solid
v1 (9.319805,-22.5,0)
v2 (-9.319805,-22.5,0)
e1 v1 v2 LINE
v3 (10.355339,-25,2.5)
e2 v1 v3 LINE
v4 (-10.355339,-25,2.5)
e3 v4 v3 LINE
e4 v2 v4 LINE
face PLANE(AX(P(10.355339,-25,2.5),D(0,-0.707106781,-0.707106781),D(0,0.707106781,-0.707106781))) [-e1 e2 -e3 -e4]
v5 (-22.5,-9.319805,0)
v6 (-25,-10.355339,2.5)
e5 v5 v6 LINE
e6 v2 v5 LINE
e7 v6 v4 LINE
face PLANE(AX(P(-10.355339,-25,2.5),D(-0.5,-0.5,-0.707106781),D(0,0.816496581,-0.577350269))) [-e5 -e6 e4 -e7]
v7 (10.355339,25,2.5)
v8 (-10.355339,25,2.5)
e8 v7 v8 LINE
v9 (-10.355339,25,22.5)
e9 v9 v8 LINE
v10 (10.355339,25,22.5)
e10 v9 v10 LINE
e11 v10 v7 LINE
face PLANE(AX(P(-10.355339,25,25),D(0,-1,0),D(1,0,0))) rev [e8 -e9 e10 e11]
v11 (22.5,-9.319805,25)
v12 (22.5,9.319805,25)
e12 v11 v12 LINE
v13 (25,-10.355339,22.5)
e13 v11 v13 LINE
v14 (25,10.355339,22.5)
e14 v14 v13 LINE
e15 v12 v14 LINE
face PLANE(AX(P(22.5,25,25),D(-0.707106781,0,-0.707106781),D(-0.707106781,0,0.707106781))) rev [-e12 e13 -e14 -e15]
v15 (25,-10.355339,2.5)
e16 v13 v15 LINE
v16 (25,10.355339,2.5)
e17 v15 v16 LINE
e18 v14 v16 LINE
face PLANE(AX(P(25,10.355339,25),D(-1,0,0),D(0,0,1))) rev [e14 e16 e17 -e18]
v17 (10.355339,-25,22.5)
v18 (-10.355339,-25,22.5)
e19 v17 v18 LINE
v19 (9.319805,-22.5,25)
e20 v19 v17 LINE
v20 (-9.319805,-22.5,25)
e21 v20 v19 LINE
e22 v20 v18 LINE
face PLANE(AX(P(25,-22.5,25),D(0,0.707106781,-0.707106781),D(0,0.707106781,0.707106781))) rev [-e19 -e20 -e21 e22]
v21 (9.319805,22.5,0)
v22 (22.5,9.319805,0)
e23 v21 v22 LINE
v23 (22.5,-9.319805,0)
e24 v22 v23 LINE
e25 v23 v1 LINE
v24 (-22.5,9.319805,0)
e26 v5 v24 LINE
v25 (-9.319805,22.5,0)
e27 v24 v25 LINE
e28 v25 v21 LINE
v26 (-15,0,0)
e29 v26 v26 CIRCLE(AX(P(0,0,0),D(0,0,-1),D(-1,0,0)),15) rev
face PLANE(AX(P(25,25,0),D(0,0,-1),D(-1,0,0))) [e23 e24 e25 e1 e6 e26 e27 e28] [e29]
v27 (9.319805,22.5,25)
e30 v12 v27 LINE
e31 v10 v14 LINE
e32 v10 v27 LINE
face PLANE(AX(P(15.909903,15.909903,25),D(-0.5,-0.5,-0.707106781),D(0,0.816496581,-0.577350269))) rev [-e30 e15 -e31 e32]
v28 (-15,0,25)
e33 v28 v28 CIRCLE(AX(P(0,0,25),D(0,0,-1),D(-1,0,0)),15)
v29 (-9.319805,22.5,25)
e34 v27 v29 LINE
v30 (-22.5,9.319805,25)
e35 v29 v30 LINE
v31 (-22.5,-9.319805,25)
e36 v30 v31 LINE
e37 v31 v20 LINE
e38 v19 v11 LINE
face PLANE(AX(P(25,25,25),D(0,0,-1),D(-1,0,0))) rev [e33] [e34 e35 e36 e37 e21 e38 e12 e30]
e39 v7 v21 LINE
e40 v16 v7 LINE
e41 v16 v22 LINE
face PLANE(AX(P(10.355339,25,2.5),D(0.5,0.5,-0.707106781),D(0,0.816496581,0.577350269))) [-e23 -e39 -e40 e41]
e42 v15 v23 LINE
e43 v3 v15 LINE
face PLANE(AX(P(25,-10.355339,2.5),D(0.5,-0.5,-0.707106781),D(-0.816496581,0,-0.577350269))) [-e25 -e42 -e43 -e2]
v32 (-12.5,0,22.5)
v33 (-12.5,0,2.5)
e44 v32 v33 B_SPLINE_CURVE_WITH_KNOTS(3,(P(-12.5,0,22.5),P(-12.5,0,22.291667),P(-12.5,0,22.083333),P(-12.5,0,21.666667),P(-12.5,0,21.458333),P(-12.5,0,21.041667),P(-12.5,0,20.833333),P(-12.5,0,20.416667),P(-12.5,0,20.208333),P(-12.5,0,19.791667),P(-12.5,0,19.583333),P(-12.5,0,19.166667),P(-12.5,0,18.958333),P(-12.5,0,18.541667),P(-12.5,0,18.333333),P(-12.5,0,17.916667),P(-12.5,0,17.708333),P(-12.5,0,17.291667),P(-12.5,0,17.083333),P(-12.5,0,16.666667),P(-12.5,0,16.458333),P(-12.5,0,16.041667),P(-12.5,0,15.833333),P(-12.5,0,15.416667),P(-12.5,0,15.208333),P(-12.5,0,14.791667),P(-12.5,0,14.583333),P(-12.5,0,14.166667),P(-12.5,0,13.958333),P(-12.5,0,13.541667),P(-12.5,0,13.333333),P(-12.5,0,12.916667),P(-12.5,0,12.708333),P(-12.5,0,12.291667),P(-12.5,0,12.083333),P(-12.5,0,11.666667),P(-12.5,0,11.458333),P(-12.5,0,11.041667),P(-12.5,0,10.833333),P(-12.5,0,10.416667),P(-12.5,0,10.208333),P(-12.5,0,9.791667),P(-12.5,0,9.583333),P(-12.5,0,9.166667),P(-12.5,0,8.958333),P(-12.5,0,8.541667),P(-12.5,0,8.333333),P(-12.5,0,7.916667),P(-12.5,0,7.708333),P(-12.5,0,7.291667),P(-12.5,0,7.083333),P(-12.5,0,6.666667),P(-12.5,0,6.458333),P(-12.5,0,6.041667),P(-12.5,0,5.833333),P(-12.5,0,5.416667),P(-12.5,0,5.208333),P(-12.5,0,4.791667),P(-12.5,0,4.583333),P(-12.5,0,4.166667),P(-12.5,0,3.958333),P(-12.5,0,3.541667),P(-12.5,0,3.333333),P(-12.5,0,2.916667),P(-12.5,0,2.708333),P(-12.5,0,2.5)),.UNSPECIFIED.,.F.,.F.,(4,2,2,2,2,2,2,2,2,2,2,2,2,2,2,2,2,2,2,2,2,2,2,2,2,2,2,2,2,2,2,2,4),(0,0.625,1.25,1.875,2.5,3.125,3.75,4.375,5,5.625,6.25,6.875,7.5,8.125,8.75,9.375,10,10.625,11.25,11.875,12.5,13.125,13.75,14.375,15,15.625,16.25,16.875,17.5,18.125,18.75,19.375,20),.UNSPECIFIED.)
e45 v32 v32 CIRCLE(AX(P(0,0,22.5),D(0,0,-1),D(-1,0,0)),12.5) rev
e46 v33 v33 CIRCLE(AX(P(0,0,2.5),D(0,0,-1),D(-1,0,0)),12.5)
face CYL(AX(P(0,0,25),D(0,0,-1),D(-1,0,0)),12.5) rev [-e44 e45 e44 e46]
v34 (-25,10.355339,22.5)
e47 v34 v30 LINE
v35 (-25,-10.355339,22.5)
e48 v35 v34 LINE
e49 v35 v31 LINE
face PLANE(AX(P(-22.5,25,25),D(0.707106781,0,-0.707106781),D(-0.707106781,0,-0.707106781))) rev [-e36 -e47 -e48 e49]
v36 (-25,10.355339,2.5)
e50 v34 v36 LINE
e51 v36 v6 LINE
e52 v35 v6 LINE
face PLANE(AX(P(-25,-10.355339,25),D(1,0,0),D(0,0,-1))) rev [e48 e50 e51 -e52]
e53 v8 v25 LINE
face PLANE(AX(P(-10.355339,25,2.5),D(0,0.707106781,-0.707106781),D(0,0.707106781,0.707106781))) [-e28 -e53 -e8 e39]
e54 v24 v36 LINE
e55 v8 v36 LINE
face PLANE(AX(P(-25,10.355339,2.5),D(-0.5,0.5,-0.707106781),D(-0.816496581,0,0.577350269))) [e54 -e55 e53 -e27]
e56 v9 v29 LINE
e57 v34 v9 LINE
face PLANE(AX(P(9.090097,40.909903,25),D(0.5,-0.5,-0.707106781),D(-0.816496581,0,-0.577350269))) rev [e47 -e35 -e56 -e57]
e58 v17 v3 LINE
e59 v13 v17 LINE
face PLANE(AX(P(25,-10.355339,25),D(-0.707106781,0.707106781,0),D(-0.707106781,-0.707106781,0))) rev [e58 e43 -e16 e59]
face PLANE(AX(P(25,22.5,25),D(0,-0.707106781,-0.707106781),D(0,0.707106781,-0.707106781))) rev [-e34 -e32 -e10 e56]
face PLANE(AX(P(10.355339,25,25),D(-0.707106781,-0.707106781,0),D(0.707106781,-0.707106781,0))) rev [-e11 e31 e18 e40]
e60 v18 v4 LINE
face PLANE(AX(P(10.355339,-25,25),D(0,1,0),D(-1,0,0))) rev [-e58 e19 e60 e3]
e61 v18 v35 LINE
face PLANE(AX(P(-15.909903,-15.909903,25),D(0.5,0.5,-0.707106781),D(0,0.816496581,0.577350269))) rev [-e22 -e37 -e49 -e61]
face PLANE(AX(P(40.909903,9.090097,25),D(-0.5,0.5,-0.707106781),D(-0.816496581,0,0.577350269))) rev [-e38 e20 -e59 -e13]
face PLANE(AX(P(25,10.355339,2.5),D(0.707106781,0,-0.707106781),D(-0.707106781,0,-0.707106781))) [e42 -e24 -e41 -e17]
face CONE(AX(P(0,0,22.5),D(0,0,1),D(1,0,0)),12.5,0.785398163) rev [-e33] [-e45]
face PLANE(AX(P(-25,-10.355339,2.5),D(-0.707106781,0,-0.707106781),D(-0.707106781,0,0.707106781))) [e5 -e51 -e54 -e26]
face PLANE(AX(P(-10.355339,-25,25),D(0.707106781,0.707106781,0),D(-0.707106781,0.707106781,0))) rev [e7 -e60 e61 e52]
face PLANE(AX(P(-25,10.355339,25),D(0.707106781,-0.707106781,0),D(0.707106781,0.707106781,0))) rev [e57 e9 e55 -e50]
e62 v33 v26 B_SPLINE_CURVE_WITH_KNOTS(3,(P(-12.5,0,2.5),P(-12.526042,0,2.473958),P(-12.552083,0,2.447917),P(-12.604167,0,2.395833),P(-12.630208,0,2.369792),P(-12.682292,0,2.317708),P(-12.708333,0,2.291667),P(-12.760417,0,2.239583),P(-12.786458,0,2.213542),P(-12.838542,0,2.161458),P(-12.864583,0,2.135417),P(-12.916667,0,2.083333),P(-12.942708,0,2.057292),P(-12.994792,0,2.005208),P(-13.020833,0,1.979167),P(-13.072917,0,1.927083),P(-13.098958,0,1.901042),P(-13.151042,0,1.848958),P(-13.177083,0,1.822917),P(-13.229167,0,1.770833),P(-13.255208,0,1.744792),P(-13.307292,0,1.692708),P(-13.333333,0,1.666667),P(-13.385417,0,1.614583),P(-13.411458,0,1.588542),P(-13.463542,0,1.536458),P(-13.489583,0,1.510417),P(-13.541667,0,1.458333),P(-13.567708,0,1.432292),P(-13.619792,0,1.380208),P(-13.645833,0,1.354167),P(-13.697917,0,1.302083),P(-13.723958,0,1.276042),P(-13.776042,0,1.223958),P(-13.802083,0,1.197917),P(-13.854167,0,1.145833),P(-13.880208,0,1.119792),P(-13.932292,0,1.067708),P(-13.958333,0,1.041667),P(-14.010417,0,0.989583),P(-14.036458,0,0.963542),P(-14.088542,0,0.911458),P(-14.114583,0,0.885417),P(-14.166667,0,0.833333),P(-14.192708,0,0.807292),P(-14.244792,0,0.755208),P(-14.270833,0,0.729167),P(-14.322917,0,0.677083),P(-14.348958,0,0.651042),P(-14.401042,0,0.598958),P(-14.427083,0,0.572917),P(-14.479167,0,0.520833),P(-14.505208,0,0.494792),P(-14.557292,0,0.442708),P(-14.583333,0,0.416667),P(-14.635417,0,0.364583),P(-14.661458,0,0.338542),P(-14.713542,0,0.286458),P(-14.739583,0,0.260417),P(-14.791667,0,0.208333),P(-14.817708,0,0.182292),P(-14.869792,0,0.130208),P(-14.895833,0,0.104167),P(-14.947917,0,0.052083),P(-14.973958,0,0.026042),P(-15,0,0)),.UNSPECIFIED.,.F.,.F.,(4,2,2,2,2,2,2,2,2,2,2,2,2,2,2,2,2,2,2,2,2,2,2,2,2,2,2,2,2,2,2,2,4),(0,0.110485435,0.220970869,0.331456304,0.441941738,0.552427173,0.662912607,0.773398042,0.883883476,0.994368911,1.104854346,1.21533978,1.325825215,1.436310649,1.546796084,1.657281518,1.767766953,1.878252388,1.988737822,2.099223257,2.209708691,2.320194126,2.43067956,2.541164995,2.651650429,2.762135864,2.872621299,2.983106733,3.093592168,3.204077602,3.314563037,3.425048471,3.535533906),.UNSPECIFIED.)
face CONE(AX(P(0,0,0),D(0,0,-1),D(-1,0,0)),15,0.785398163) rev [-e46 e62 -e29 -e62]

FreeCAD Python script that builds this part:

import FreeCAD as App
import Part
import Sketcher

V = App.Vector
Q = App.Units.Quantity


def edges_at(feature, points):
    """Names of the edges that pass closest to the given points."""
    edges = feature.Shape.Edges
    near = lambda p: min(range(len(edges)), key=lambda i: edges[i].distToShape(Part.Vertex(*p))[0])
    return sorted({f"Edge{near(p) + 1}" for p in points})


def add_polygon(sketch, points):
    """Adds a closed chain of lines whose ends are joined by coincident constraints."""
    first, n = sketch.GeometryCount, len(points)
    for a, b in zip(points, points[1:] + points[:1]):
        sketch.addGeometry(Part.LineSegment(App.Vector(*a, 0), App.Vector(*b, 0)), False)
    for i in range(n):
        sketch.addConstraint(Sketcher.Constraint("Coincident", first + i, 2, first + (i + 1) % n, 1))

doc = App.newDocument("Part")
body = doc.addObject("PartDesign::Body", "Body")

# Sketch on XY plane
sketch1 = doc.addObject("Sketcher::SketchObject", "Sketch")
body.addObject(sketch1)
sketch1.AttachmentSupport = (doc.XY_Plane, [""])
sketch1.MapMode = "FlatFace"
add_polygon(sketch1, [(-10, 25), (-25, 10), (-25, -10), (-10, -25), (10, -25), (25, -10), (25, 10), (10, 25)])  # lines 0-7
sketch1.addGeometry(Part.Circle(V(0, 0, 0), V(0, 0, 1), 12), False)  # 8
sketch1.addConstraint(Sketcher.Constraint("Vertical", 1))
sketch1.addConstraint(Sketcher.Constraint("Horizontal", 3))
sketch1.addConstraint(Sketcher.Constraint("Vertical", 5))
sketch1.addConstraint(Sketcher.Constraint("Horizontal", 7))
sketch1.addConstraint(Sketcher.Constraint("Coincident", 8, 3, -1, 1))
sketch1.addConstraint(Sketcher.Constraint("Symmetric", 0, 2, 4, 2, -1, 1))
sketch1.addConstraint(Sketcher.Constraint("Symmetric", 2, 2, 6, 2, -1, 1))
sketch1.addConstraint(Sketcher.Constraint("Perpendicular", 0, 2))
sketch1.addConstraint(Sketcher.Constraint("Perpendicular", 2, 4))
sketch1.addConstraint(Sketcher.Constraint("Perpendicular", 4, 6))
sketch1.addConstraint(Sketcher.Constraint("Horizontal", 1, 2, 4, 2))
sketch1.addConstraint(Sketcher.Constraint("Vertical", 3, 2, 6, 2))
sketch1.addConstraint(Sketcher.Constraint("Equal", 7, 1))
sketch1.addConstraint(Sketcher.Constraint("Diameter", 8, Q("25 mm")))
sketch1.addConstraint(Sketcher.Constraint("DistanceX", 0, 2, -1, 1, Q("25 mm")))
sketch1.addConstraint(Sketcher.Constraint("DistanceX", 3, 1, 3, 2, Q("20.710678 mm")))
pad1 = doc.addObject("PartDesign::Pad", "Pad")
body.addObject(pad1)
pad1.Profile = sketch1
pad1.Length = 25
doc.recompute()

chamfer = doc.addObject("PartDesign::Chamfer", "Chamfer")
body.addObject(chamfer)
chamfer.Base = (pad1, edges_at(pad1, [
    (-12.5, 0, 0),
    (17.678, 17.678, 0),
    (25, 0, 0),
    (17.678, -17.678, 0),
    (0, -25, 0),
    (-17.678, -17.678, 0),
    (-25, 0, 0),
    (-17.678, 17.678, 0),
    (0, 25, 0),
]))
chamfer.Size = 2.5
doc.recompute()

chamfer2 = doc.addObject("PartDesign::Chamfer", "Chamfer001")
body.addObject(chamfer2)
chamfer2.Base = (chamfer, edges_at(chamfer, [
    (-25, 0, 25),
    (-17.678, -17.678, 25),
    (0, -25, 25),
    (17.678, -17.678, 25),
    (-12.5, 0, 25),
    (25, 0, 25),
    (17.678, 17.678, 25),
    (0, 25, 25),
    (-17.678, 17.678, 25),
]))
chamfer2.Size = 2.5

doc.recompute()
